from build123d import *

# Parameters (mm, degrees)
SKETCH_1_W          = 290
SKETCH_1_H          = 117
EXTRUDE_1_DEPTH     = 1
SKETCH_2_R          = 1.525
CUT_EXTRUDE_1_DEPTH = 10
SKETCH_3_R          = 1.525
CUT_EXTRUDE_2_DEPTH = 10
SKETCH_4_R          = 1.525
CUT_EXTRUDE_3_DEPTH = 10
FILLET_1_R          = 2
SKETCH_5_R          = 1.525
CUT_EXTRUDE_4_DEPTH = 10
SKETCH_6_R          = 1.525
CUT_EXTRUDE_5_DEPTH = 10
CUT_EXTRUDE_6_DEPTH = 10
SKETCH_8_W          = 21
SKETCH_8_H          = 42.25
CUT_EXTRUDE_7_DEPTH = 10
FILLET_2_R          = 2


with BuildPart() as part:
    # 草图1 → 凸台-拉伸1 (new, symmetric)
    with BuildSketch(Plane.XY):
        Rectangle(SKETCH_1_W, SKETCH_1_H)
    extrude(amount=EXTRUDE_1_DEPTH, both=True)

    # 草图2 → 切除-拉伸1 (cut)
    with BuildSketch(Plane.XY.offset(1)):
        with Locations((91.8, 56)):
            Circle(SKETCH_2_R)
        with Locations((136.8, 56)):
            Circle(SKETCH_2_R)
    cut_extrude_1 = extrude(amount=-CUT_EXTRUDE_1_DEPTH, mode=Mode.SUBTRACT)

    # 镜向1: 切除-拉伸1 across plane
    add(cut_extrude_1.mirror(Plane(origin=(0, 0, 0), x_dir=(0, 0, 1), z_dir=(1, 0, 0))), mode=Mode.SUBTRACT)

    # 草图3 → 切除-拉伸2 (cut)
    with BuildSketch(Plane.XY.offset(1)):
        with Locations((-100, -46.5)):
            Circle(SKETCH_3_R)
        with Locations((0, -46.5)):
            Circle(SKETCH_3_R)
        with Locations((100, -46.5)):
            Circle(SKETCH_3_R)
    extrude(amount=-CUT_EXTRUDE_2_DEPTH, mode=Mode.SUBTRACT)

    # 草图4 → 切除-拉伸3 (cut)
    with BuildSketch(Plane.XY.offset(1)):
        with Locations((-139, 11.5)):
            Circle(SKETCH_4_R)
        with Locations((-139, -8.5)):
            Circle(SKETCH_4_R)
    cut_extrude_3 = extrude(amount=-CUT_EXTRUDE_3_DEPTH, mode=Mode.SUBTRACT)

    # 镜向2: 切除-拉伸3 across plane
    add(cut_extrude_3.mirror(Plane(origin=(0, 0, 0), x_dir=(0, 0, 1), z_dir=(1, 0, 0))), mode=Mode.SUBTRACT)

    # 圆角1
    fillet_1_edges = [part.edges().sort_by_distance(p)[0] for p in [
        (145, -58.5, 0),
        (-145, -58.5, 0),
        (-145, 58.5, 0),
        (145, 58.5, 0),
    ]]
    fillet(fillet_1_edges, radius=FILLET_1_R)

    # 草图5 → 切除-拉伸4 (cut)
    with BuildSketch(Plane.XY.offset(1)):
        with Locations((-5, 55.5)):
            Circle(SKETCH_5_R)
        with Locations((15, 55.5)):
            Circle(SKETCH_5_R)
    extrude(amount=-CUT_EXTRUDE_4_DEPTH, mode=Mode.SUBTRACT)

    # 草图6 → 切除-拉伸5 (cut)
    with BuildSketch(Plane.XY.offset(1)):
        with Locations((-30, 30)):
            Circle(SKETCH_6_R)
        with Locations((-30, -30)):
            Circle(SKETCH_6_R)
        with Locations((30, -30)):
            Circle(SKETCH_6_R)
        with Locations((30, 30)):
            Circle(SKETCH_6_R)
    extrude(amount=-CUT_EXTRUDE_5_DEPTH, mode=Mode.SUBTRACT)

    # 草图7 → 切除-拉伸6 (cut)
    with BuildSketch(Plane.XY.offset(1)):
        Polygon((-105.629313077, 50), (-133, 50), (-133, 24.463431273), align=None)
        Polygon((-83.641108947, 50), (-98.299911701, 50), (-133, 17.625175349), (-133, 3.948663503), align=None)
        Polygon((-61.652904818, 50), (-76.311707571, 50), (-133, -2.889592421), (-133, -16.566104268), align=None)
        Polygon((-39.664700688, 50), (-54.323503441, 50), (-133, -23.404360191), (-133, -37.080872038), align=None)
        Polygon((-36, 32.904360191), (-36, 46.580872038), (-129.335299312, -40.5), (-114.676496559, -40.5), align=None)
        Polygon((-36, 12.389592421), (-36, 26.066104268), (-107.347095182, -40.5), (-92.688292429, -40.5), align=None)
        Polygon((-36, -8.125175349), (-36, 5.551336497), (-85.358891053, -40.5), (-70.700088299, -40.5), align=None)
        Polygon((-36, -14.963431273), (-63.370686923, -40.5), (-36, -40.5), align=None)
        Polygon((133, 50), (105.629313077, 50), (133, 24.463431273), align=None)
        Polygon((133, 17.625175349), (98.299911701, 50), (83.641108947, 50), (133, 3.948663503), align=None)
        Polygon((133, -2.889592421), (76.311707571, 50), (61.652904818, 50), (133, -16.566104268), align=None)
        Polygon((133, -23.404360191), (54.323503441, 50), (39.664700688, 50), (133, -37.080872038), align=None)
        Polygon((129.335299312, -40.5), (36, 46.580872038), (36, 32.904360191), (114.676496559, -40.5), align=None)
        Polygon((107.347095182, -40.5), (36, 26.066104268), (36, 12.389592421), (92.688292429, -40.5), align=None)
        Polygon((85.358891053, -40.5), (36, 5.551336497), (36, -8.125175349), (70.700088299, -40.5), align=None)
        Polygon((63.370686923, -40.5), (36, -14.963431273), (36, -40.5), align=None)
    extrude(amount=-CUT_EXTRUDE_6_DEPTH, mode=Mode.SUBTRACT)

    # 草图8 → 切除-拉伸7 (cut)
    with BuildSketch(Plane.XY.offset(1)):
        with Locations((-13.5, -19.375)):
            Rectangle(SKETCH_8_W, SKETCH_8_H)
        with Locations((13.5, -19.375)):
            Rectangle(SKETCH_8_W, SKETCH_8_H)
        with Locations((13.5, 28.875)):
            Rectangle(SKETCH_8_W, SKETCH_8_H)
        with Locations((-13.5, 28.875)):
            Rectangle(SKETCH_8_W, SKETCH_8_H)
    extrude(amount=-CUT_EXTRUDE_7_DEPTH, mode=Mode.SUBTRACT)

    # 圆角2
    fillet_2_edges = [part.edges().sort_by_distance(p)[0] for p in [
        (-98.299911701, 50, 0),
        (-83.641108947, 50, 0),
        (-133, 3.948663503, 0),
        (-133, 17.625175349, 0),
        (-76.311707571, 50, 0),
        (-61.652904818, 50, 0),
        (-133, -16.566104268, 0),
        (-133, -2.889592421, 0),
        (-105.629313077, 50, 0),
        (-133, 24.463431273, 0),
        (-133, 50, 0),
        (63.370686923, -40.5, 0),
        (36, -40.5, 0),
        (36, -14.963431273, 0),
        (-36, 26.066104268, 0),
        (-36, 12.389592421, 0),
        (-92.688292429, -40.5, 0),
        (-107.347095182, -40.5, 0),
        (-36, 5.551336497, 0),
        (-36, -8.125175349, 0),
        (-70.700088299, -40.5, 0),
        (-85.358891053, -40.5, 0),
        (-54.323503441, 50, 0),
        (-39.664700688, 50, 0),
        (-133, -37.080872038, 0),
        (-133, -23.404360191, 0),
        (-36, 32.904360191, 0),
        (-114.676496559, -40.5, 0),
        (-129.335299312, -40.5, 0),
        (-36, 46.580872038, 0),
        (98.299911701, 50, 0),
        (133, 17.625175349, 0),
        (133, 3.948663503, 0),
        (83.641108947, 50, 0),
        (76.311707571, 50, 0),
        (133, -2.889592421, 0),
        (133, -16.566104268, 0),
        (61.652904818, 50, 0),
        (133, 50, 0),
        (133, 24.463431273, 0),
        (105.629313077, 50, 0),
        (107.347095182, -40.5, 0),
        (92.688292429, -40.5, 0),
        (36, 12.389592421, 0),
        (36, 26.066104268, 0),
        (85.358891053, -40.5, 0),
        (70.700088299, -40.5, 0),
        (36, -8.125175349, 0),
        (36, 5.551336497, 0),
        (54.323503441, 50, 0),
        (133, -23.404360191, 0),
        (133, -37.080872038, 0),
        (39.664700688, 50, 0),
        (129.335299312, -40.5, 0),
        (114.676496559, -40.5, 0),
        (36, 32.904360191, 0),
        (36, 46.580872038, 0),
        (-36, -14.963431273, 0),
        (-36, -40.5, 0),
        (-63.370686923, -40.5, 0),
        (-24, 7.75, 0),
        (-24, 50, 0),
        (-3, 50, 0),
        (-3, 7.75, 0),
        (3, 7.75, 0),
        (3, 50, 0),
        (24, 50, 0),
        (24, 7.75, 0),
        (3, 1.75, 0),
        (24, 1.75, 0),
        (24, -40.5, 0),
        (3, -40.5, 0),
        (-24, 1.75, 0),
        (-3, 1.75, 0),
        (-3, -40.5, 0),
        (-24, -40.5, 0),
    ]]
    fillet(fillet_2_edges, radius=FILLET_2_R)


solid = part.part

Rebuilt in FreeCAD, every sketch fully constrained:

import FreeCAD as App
import Part
import Sketcher

V = App.Vector


def edges_at(feature, points):
    """Names of the edges that pass closest to the given points."""
    edges = feature.Shape.Edges
    near = lambda p: min(range(len(edges)), key=lambda i: edges[i].distToShape(Part.Vertex(*p))[0])
    return sorted({f"Edge{near(p) + 1}" for p in points})

doc = App.newDocument("Part")
body = doc.addObject("PartDesign::Body", "Body")

# Sketch on XY plane
sketch1 = doc.addObject("Sketcher::SketchObject", "Sketch")
body.addObject(sketch1)
sketch1.AttachmentSupport = (doc.XY_Plane, [""])
sketch1.MapMode = "FlatFace"
sketch1.addGeometry([
    Part.LineSegment(V(-145, 58, 0), V(-145, -58, 0)),
    Part.LineSegment(V(-145, -58, 0), V(145, -58, 0)),
    Part.LineSegment(V(145, -58, 0), V(145, 58, 0)),
    Part.LineSegment(V(145, 58, 0), V(-145, 58, 0)),
], False)
sketch1.addConstraint([
    Sketcher.Constraint("Coincident", 0, 2, 1, 1),
    Sketcher.Constraint("Coincident", 1, 2, 2, 1),
    Sketcher.Constraint("Coincident", 2, 2, 3, 1),
    Sketcher.Constraint("Coincident", 3, 2, 0, 1),
    Sketcher.Constraint("Vertical", 0),
    Sketcher.Constraint("Horizontal", 1),
    Sketcher.Constraint("Vertical", 2),
    Sketcher.Constraint("Horizontal", 3),
    Sketcher.Constraint("Symmetric", 0, 2, 2, 2, -1, 1),
    Sketcher.Constraint("DistanceX", 1, 1, 1, 2, 290.0),
    Sketcher.Constraint("DistanceY", 0, 2, 0, 1, 117.0),
])
pad1 = doc.addObject("PartDesign::Pad", "Pad")
body.addObject(pad1)
pad1.Profile = sketch1
pad1.Length = 2
pad1.Midplane = True

# Sketch on XY plane
sketch2 = doc.addObject("Sketcher::SketchObject", "Sketch001")
body.addObject(sketch2)
sketch2.AttachmentSupport = (doc.XY_Plane, [""])
sketch2.MapMode = "FlatFace"
sketch2.AttachmentOffset = App.Placement(V(0, 0, 1), App.Rotation())
sketch2.addGeometry([
    Part.Circle(V(91.8, 56, 0), V(0, 0, 1), 1.5),
    Part.Circle(V(136.8, 56, 0), V(0, 0, 1), 1.5),
], False)
sketch2.addConstraint([
    Sketcher.Constraint("Equal", 0, 1),
    Sketcher.Constraint("Horizontal", 0, 3, 1, 3),
    Sketcher.Constraint("Diameter", 0, 3.05),
    Sketcher.Constraint("DistanceY", -1, 1, 0, 3, 56.0),
    Sketcher.Constraint("DistanceX", 0, 3, 1, 3, 45.0),
    Sketcher.Constraint("DistanceX", -1, 1, 0, 3, 91.8),
])
pocket1 = doc.addObject("PartDesign::Pocket", "Pocket")
body.addObject(pocket1)
pocket1.Profile = sketch2
pocket1.Length = 10
doc.recompute()

mirrored = doc.addObject("PartDesign::Mirrored", "Mirrored")
body.addObject(mirrored)
mirrored.Originals = [pocket1]
mirrored.MirrorPlane = (doc.YZ_Plane, [""])
body.Tip = mirrored

# Sketch on XY plane
sketch3 = doc.addObject("Sketcher::SketchObject", "Sketch002")
body.addObject(sketch3)
sketch3.AttachmentSupport = (doc.XY_Plane, [""])
sketch3.MapMode = "FlatFace"
sketch3.AttachmentOffset = App.Placement(V(0, 0, 1), App.Rotation())
sketch3.addGeometry([
    Part.Circle(V(-100, -46.5, 0), V(0, 0, 1), 1.5),
    Part.Circle(V(0, -46.5, 0), V(0, 0, 1), 1.5),
    Part.Circle(V(100, -46.5, 0), V(0, 0, 1), 1.5),
], False)
sketch3.addConstraint([
    Sketcher.Constraint("Equal", 0, 1),
    Sketcher.Constraint("Equal", 1, 2),
    Sketcher.Constraint("Symmetric", 0, 3, 2, 3, -2),
    Sketcher.Constraint("PointOnObject", 1, 3, -2),
    Sketcher.Constraint("Horizontal", 0, 3, 1, 3),
    Sketcher.Constraint("Diameter", 0, 3.05),
    Sketcher.Constraint("DistanceX", 0, 3, -1, 1, 100.0),
    Sketcher.Constraint("DistanceY", 0, 3, -1, 1, 46.5),
])
pocket2 = doc.addObject("PartDesign::Pocket", "Pocket001")
body.addObject(pocket2)
pocket2.Profile = sketch3
pocket2.Length = 10

# Sketch on XY plane
sketch4 = doc.addObject("Sketcher::SketchObject", "Sketch003")
body.addObject(sketch4)
sketch4.AttachmentSupport = (doc.XY_Plane, [""])
sketch4.MapMode = "FlatFace"
sketch4.AttachmentOffset = App.Placement(V(0, 0, 1), App.Rotation())
sketch4.addGeometry([
    Part.Circle(V(-139, 11.5, 0), V(0, 0, 1), 1.5),
    Part.Circle(V(-139, -8.5, 0), V(0, 0, 1), 1.5),
], False)
sketch4.addConstraint([
    Sketcher.Constraint("Equal", 0, 1),
    Sketcher.Constraint("Vertical", 0, 3, 1, 3),
    Sketcher.Constraint("Diameter", 0, 3.05),
    Sketcher.Constraint("DistanceX", 0, 3, -1, 1, 139.0),
    Sketcher.Constraint("DistanceY", 1, 3, 0, 3, 20.0),
    Sketcher.Constraint("DistanceY", -1, 1, 0, 3, 11.5),
])
pocket3 = doc.addObject("PartDesign::Pocket", "Pocket002")
body.addObject(pocket3)
pocket3.Profile = sketch4
pocket3.Length = 10
doc.recompute()

mirrored2 = doc.addObject("PartDesign::Mirrored", "Mirrored001")
body.addObject(mirrored2)
mirrored2.Originals = [pocket3]
mirrored2.MirrorPlane = (doc.YZ_Plane, [""])
body.Tip = mirrored2
doc.recompute()

fillet = doc.addObject("PartDesign::Fillet", "Fillet")
body.addObject(fillet)
fillet.Base = (mirrored2, edges_at(mirrored2, [
    (145, -58.5, 0),
    (-145, -58.5, 0),
    (-145, 58.5, 0),
    (145, 58.5, 0),
]))
fillet.Radius = 2

# Sketch on XY plane
sketch5 = doc.addObject("Sketcher::SketchObject", "Sketch004")
body.addObject(sketch5)
sketch5.AttachmentSupport = (doc.XY_Plane, [""])
sketch5.MapMode = "FlatFace"
sketch5.AttachmentOffset = App.Placement(V(0, 0, 1), App.Rotation())
sketch5.addGeometry([
    Part.Circle(V(-5, 55.5, 0), V(0, 0, 1), 1.5),
    Part.Circle(V(15, 55.5, 0), V(0, 0, 1), 1.5),
], False)
sketch5.addConstraint([
    Sketcher.Constraint("Equal", 0, 1),
    Sketcher.Constraint("Horizontal", 0, 3, 1, 3),
    Sketcher.Constraint("Diameter", 0, 3.05),
    Sketcher.Constraint("DistanceX", 0, 3, -1, 1, 5.0),
    Sketcher.Constraint("DistanceX", -1, 1, 1, 3, 15.0),
    Sketcher.Constraint("DistanceY", -1, 1, 0, 3, 55.5),
])
pocket4 = doc.addObject("PartDesign::Pocket", "Pocket003")
body.addObject(pocket4)
pocket4.Profile = sketch5
pocket4.Length = 10

# Sketch on XY plane
sketch6 = doc.addObject("Sketcher::SketchObject", "Sketch005")
body.addObject(sketch6)
sketch6.AttachmentSupport = (doc.XY_Plane, [""])
sketch6.MapMode = "FlatFace"
sketch6.AttachmentOffset = App.Placement(V(0, 0, 1), App.Rotation())
sketch6.addGeometry([
    Part.Circle(V(-30, 30, 0), V(0, 0, 1), 1.5),
    Part.Circle(V(-30, -30, 0), V(0, 0, 1), 1.5),
    Part.Circle(V(30, -30, 0), V(0, 0, 1), 1.5),
    Part.Circle(V(30, 30, 0), V(0, 0, 1), 1.5),
], False)
sketch6.addConstraint([
    Sketcher.Constraint("Equal", 0, 1),
    Sketcher.Constraint("Equal", 1, 2),
    Sketcher.Constraint("Equal", 2, 3),
    Sketcher.Constraint("Symmetric", 0, 3, 2, 3, -1, 1),
    Sketcher.Constraint("Symmetric", 1, 3, 3, 3, -1, 1),
    Sketcher.Constraint("Symmetric", 1, 3, 2, 3, -2),
    Sketcher.Constraint("Diameter", 0, 3.05),
    Sketcher.Constraint("DistanceX", 0, 3, -1, 1, 30.0),
    Sketcher.Constraint("DistanceY", -1, 1, 0, 3, 30.0),
])
pocket5 = doc.addObject("PartDesign::Pocket", "Pocket004")
body.addObject(pocket5)
pocket5.Profile = sketch6
pocket5.Length = 10

# Sketch on XY plane
sketch7 = doc.addObject("Sketcher::SketchObject", "Sketch006")
body.addObject(sketch7)
sketch7.AttachmentSupport = (doc.XY_Plane, [""])
sketch7.MapMode = "FlatFace"
sketch7.AttachmentOffset = App.Placement(V(0, 0, 1), App.Rotation())
sketch7.addGeometry([
    Part.LineSegment(V(-106, 50, 0), V(-133, 50, 0)),  # 0
    Part.LineSegment(V(-133, 50, 0), V(-133, 24, 0)),  # 1
    Part.LineSegment(V(-133, 24, 0), V(-106, 50, 0)),  # 2
    Part.LineSegment(V(-84, 50, 0), V(-98, 50, 0)),  # 3
    Part.LineSegment(V(-98, 50, 0), V(-133, 18, 0)),  # 4
    Part.LineSegment(V(-133, 18, 0), V(-133, 4, 0)),  # 5
    Part.LineSegment(V(-133, 4, 0), V(-84, 50, 0)),  # 6
    Part.LineSegment(V(-62, 50, 0), V(-76, 50, 0)),  # 7
    Part.LineSegment(V(-76, 50, 0), V(-133, -3, 0)),  # 8
    Part.LineSegment(V(-133, -3, 0), V(-133, -17, 0)),  # 9
    Part.LineSegment(V(-133, -17, 0), V(-62, 50, 0)),  # 10
    Part.LineSegment(V(-40, 50, 0), V(-54, 50, 0)),  # 11
    Part.LineSegment(V(-54, 50, 0), V(-133, -23, 0)),  # 12
    Part.LineSegment(V(-133, -23, 0), V(-133, -37, 0)),  # 13
    Part.LineSegment(V(-133, -37, 0), V(-40, 50, 0)),  # 14
    Part.LineSegment(V(-36, 33, 0), V(-36, 47, 0)),  # 15
    Part.LineSegment(V(-36, 47, 0), V(-129, -40, 0)),  # 16
    Part.LineSegment(V(-129, -40, 0), V(-115, -40, 0)),  # 17
    Part.LineSegment(V(-115, -40, 0), V(-36, 33, 0)),  # 18
    Part.LineSegment(V(-36, 12, 0), V(-36, 26, 0)),  # 19
    Part.LineSegment(V(-36, 26, 0), V(-107, -40, 0)),  # 20
    Part.LineSegment(V(-107, -40, 0), V(-93, -40, 0)),  # 21
    Part.LineSegment(V(-93, -40, 0), V(-36, 12, 0)),  # 22
    Part.LineSegment(V(-36, -8, 0), V(-36, 6, 0)),  # 23
    Part.LineSegment(V(-36, 6, 0), V(-85, -40, 0)),  # 24
    Part.LineSegment(V(-85, -40, 0), V(-71, -40, 0)),  # 25
    Part.LineSegment(V(-71, -40, 0), V(-36, -8, 0)),  # 26
    Part.LineSegment(V(-36, -15, 0), V(-63, -40, 0)),  # 27
    Part.LineSegment(V(-63, -40, 0), V(-36, -40, 0)),  # 28
    Part.LineSegment(V(-36, -40, 0), V(-36, -15, 0)),  # 29
    Part.LineSegment(V(133, 50, 0), V(106, 50, 0)),  # 30
    Part.LineSegment(V(106, 50, 0), V(133, 24, 0)),  # 31
    Part.LineSegment(V(133, 24, 0), V(133, 50, 0)),  # 32
    Part.LineSegment(V(133, 18, 0), V(98, 50, 0)),  # 33
    Part.LineSegment(V(98, 50, 0), V(84, 50, 0)),  # 34
    Part.LineSegment(V(84, 50, 0), V(133, 4, 0)),  # 35
    Part.LineSegment(V(133, 4, 0), V(133, 18, 0)),  # 36
    Part.LineSegment(V(133, -3, 0), V(76, 50, 0)),  # 37
    Part.LineSegment(V(76, 50, 0), V(62, 50, 0)),  # 38
    Part.LineSegment(V(62, 50, 0), V(133, -17, 0)),  # 39
    Part.LineSegment(V(133, -17, 0), V(133, -3, 0)),  # 40
    Part.LineSegment(V(133, -23, 0), V(54, 50, 0)),  # 41
    Part.LineSegment(V(54, 50, 0), V(40, 50, 0)),  # 42
    Part.LineSegment(V(40, 50, 0), V(133, -37, 0)),  # 43
    Part.LineSegment(V(133, -37, 0), V(133, -23, 0)),  # 44
    Part.LineSegment(V(129, -40, 0), V(36, 47, 0)),  # 45
    Part.LineSegment(V(36, 47, 0), V(36, 33, 0)),  # 46
    Part.LineSegment(V(36, 33, 0), V(115, -40, 0)),  # 47
    Part.LineSegment(V(115, -40, 0), V(129, -40, 0)),  # 48
    Part.LineSegment(V(107, -40, 0), V(36, 26, 0)),  # 49
    Part.LineSegment(V(36, 26, 0), V(36, 12, 0)),  # 50
    Part.LineSegment(V(36, 12, 0), V(93, -40, 0)),  # 51
    Part.LineSegment(V(93, -40, 0), V(107, -40, 0)),  # 52
    Part.LineSegment(V(85, -40, 0), V(36, 6, 0)),  # 53
    Part.LineSegment(V(36, 6, 0), V(36, -8, 0)),  # 54
    Part.LineSegment(V(36, -8, 0), V(71, -40, 0)),  # 55
    Part.LineSegment(V(71, -40, 0), V(85, -40, 0)),  # 56
    Part.LineSegment(V(63, -40, 0), V(36, -15, 0)),  # 57
    Part.LineSegment(V(36, -15, 0), V(36, -40, 0)),  # 58
    Part.LineSegment(V(36, -40, 0), V(63, -40, 0)),  # 59
], False)
sketch7.addConstraint([
    Sketcher.Constraint("Coincident", 0, 2, 1, 1),
    Sketcher.Constraint("Coincident", 1, 2, 2, 1),
    Sketcher.Constraint("Coincident", 2, 2, 0, 1),
    Sketcher.Constraint("Coincident", 3, 2, 4, 1),
    Sketcher.Constraint("Coincident", 4, 2, 5, 1),
    Sketcher.Constraint("Coincident", 5, 2, 6, 1),
    Sketcher.Constraint("Coincident", 6, 2, 3, 1),
    Sketcher.Constraint("Coincident", 7, 2, 8, 1),
    Sketcher.Constraint("Coincident", 8, 2, 9, 1),
    Sketcher.Constraint("Coincident", 9, 2, 10, 1),
    Sketcher.Constraint("Coincident", 10, 2, 7, 1),
    Sketcher.Constraint("Coincident", 11, 2, 12, 1),
    Sketcher.Constraint("Coincident", 12, 2, 13, 1),
    Sketcher.Constraint("Coincident", 13, 2, 14, 1),
    Sketcher.Constraint("Coincident", 14, 2, 11, 1),
    Sketcher.Constraint("Coincident", 15, 2, 16, 1),
    Sketcher.Constraint("Coincident", 16, 2, 17, 1),
    Sketcher.Constraint("Coincident", 17, 2, 18, 1),
    Sketcher.Constraint("Coincident", 18, 2, 15, 1),
    Sketcher.Constraint("Coincident", 19, 2, 20, 1),
    Sketcher.Constraint("Coincident", 20, 2, 21, 1),
    Sketcher.Constraint("Coincident", 21, 2, 22, 1),
    Sketcher.Constraint("Coincident", 22, 2, 19, 1),
    Sketcher.Constraint("Coincident", 23, 2, 24, 1),
    Sketcher.Constraint("Coincident", 24, 2, 25, 1),
    Sketcher.Constraint("Coincident", 25, 2, 26, 1),
    Sketcher.Constraint("Coincident", 26, 2, 23, 1),
    Sketcher.Constraint("Coincident", 27, 2, 28, 1),
    Sketcher.Constraint("Coincident", 28, 2, 29, 1),
    Sketcher.Constraint("Coincident", 29, 2, 27, 1),
    Sketcher.Constraint("Coincident", 30, 2, 31, 1),
    Sketcher.Constraint("Coincident", 31, 2, 32, 1),
    Sketcher.Constraint("Coincident", 32, 2, 30, 1),
    Sketcher.Constraint("Coincident", 33, 2, 34, 1),
    Sketcher.Constraint("Coincident", 34, 2, 35, 1),
    Sketcher.Constraint("Coincident", 35, 2, 36, 1),
    Sketcher.Constraint("Coincident", 36, 2, 33, 1),
    Sketcher.Constraint("Coincident", 37, 2, 38, 1),
    Sketcher.Constraint("Coincident", 38, 2, 39, 1),
    Sketcher.Constraint("Coincident", 39, 2, 40, 1),
    Sketcher.Constraint("Coincident", 40, 2, 37, 1),
    Sketcher.Constraint("Coincident", 41, 2, 42, 1),
    Sketcher.Constraint("Coincident", 42, 2, 43, 1),
    Sketcher.Constraint("Coincident", 43, 2, 44, 1),
    Sketcher.Constraint("Coincident", 44, 2, 41, 1),
    Sketcher.Constraint("Coincident", 45, 2, 46, 1),
    Sketcher.Constraint("Coincident", 46, 2, 47, 1),
    Sketcher.Constraint("Coincident", 47, 2, 48, 1),
    Sketcher.Constraint("Coincident", 48, 2, 45, 1),
    Sketcher.Constraint("Coincident", 49, 2, 50, 1),
    Sketcher.Constraint("Coincident", 50, 2, 51, 1),
    Sketcher.Constraint("Coincident", 51, 2, 52, 1),
    Sketcher.Constraint("Coincident", 52, 2, 49, 1),
    Sketcher.Constraint("Coincident", 53, 2, 54, 1),
    Sketcher.Constraint("Coincident", 54, 2, 55, 1),
    Sketcher.Constraint("Coincident", 55, 2, 56, 1),
    Sketcher.Constraint("Coincident", 56, 2, 53, 1),
    Sketcher.Constraint("Coincident", 57, 2, 58, 1),
    Sketcher.Constraint("Coincident", 58, 2, 59, 1),
    Sketcher.Constraint("Coincident", 59, 2, 57, 1),
    Sketcher.Constraint("Horizontal", 0),
    Sketcher.Constraint("Vertical", 1),
    Sketcher.Constraint("Horizontal", 3),
    Sketcher.Constraint("Vertical", 5),
    Sketcher.Constraint("Horizontal", 7),
    Sketcher.Constraint("Vertical", 9),
    Sketcher.Constraint("Horizontal", 11),
    Sketcher.Constraint("Vertical", 13),
    Sketcher.Constraint("Vertical", 15),
    Sketcher.Constraint("Horizontal", 17),
    Sketcher.Constraint("Vertical", 19),
    Sketcher.Constraint("Horizontal", 21),
    Sketcher.Constraint("Vertical", 23),
    Sketcher.Constraint("Horizontal", 25),
    Sketcher.Constraint("Horizontal", 28),
    Sketcher.Constraint("Vertical", 29),
    Sketcher.Constraint("Horizontal", 30),
    Sketcher.Constraint("Vertical", 32),
    Sketcher.Constraint("Horizontal", 34),
    Sketcher.Constraint("Vertical", 36),
    Sketcher.Constraint("Horizontal", 38),
    Sketcher.Constraint("Vertical", 40),
    Sketcher.Constraint("Horizontal", 42),
    Sketcher.Constraint("Vertical", 44),
    Sketcher.Constraint("Vertical", 46),
    Sketcher.Constraint("Horizontal", 48),
    Sketcher.Constraint("Vertical", 50),
    Sketcher.Constraint("Horizontal", 52),
    Sketcher.Constraint("Vertical", 54),
    Sketcher.Constraint("Horizontal", 56),
    Sketcher.Constraint("Vertical", 58),
    Sketcher.Constraint("Horizontal", 59),
    Sketcher.Constraint("Symmetric", 2, 2, 30, 2, -2),
    Sketcher.Constraint("Symmetric", 1, 2, 31, 2, -2),
    Sketcher.Constraint("Symmetric", 3, 2, 33, 2, -2),
    Sketcher.Constraint("Symmetric", 5, 2, 35, 2, -2),
    Sketcher.Constraint("Symmetric", 7, 2, 37, 2, -2),
    Sketcher.Constraint("Symmetric", 9, 2, 39, 2, -2),
    Sketcher.Constraint("Symmetric", 11, 2, 41, 2, -2),
    Sketcher.Constraint("Symmetric", 13, 2, 43, 2, -2),
    Sketcher.Constraint("Symmetric", 15, 2, 45, 2, -2),
    Sketcher.Constraint("Symmetric", 17, 2, 47, 2, -2),
    Sketcher.Constraint("Symmetric", 19, 2, 49, 2, -2),
    Sketcher.Constraint("Symmetric", 21, 2, 51, 2, -2),
    Sketcher.Constraint("Symmetric", 23, 2, 53, 2, -2),
    Sketcher.Constraint("Symmetric", 25, 2, 55, 2, -2),
    Sketcher.Constraint("Symmetric", 29, 2, 57, 2, -2),
    Sketcher.Constraint("Symmetric", 27, 2, 59, 2, -2),
    Sketcher.Constraint("Parallel", 2, 4),
    Sketcher.Constraint("Parallel", 4, 6),
    Sketcher.Constraint("Parallel", 6, 8),
    Sketcher.Constraint("Parallel", 8, 10),
    Sketcher.Constraint("Parallel", 10, 12),
    Sketcher.Constraint("Parallel", 12, 14),
    Sketcher.Constraint("Parallel", 14, 16),
    Sketcher.Constraint("Parallel", 16, 18),
    Sketcher.Constraint("Parallel", 18, 20),
    Sketcher.Constraint("Parallel", 20, 22),
    Sketcher.Constraint("Parallel", 22, 24),
    Sketcher.Constraint("Parallel", 24, 26),
    Sketcher.Constraint("Parallel", 26, 27),
    Sketcher.Constraint("Parallel", 31, 33),
    Sketcher.Constraint("Parallel", 33, 35),
    Sketcher.Constraint("Parallel", 35, 37),
    Sketcher.Constraint("Parallel", 37, 39),
    Sketcher.Constraint("Parallel", 39, 41),
    Sketcher.Constraint("Parallel", 41, 43),
    Sketcher.Constraint("Parallel", 43, 45),
    Sketcher.Constraint("Parallel", 45, 47),
    Sketcher.Constraint("Parallel", 47, 49),
    Sketcher.Constraint("Parallel", 49, 51),
    Sketcher.Constraint("Parallel", 51, 53),
    Sketcher.Constraint("Parallel", 53, 55),
    Sketcher.Constraint("Horizontal", 2, 2, 3, 2),
    Sketcher.Constraint("Horizontal", 6, 2, 7, 2),
    Sketcher.Constraint("Horizontal", 10, 2, 11, 2),
    Sketcher.Constraint("Horizontal", 17, 2, 20, 2),
    Sketcher.Constraint("Horizontal", 21, 2, 24, 2),
    Sketcher.Constraint("Horizontal", 25, 2, 27, 2),
    Sketcher.Constraint("Vertical", 1, 2, 4, 2),
    Sketcher.Constraint("Vertical", 5, 2, 8, 2),
    Sketcher.Constraint("Vertical", 9, 2, 12, 2),
    Sketcher.Constraint("Vertical", 18, 2, 19, 2),
    Sketcher.Constraint("Vertical", 22, 2, 23, 2),
    Sketcher.Constraint("Vertical", 26, 2, 28, 2),
    Sketcher.Constraint("Equal", 3, 7),
    Sketcher.Constraint("Equal", 7, 11),
    Sketcher.Constraint("Equal", 11, 17),
    Sketcher.Constraint("Equal", 17, 21),
    Sketcher.Constraint("Equal", 21, 25),
    Sketcher.Constraint("Equal", 0, 28),
    Sketcher.Constraint("Equal", 14, 16),
    Sketcher.Constraint("Equal", 10, 20),
    Sketcher.Constraint("Equal", 6, 24),
    Sketcher.Constraint("DistanceX", 0, 2, -1, 1, 133.0),
    Sketcher.Constraint("DistanceY", -1, 1, 0, 2, 50.0),
    Sketcher.Constraint("DistanceX", 15, 2, -1, 1, 36.0),
    Sketcher.Constraint("DistanceY", 16, 2, -1, 1, 40.5),
    Sketcher.Constraint("DistanceY", 1, 2, 1, 1, 25.536569),
    Sketcher.Constraint("DistanceY", 5, 2, 5, 1, 13.676512),
    Sketcher.Constraint("DistanceX", 14, 2, -1, 1, 39.664701),
    Sketcher.Constraint("DistanceX", 2, 2, 3, 2, 7.329401),
    Sketcher.Constraint("DistanceX", 6, 2, 7, 2, 7.329401),
    Sketcher.Constraint("DistanceX", 10, 2, 11, 2, 7.329401),
])
pocket6 = doc.addObject("PartDesign::Pocket", "Pocket005")
body.addObject(pocket6)
pocket6.Profile = sketch7
pocket6.Length = 10

# Sketch on XY plane
sketch8 = doc.addObject("Sketcher::SketchObject", "Sketch007")
body.addObject(sketch8)
sketch8.AttachmentSupport = (doc.XY_Plane, [""])
sketch8.MapMode = "FlatFace"
sketch8.AttachmentOffset = App.Placement(V(0, 0, 1), App.Rotation())
sketch8.addGeometry([
    Part.LineSegment(V(-24, 2, 0), V(-24, -40, 0)),  # 0
    Part.LineSegment(V(-24, -40, 0), V(-3, -40, 0)),  # 1
    Part.LineSegment(V(-3, -40, 0), V(-3, 2, 0)),  # 2
    Part.LineSegment(V(-3, 2, 0), V(-24, 2, 0)),  # 3
    Part.LineSegment(V(3, 2, 0), V(3, -40, 0)),  # 4
    Part.LineSegment(V(3, -40, 0), V(24, -40, 0)),  # 5
    Part.LineSegment(V(24, -40, 0), V(24, 2, 0)),  # 6
    Part.LineSegment(V(24, 2, 0), V(3, 2, 0)),  # 7
    Part.LineSegment(V(3, 50, 0), V(3, 8, 0)),  # 8
    Part.LineSegment(V(3, 8, 0), V(24, 8, 0)),  # 9
    Part.LineSegment(V(24, 8, 0), V(24, 50, 0)),  # 10
    Part.LineSegment(V(24, 50, 0), V(3, 50, 0)),  # 11
    Part.LineSegment(V(-24, 50, 0), V(-24, 8, 0)),  # 12
    Part.LineSegment(V(-24, 8, 0), V(-3, 8, 0)),  # 13
    Part.LineSegment(V(-3, 8, 0), V(-3, 50, 0)),  # 14
    Part.LineSegment(V(-3, 50, 0), V(-24, 50, 0)),  # 15
], False)
sketch8.addConstraint([
    Sketcher.Constraint("Coincident", 0, 2, 1, 1),
    Sketcher.Constraint("Coincident", 1, 2, 2, 1),
    Sketcher.Constraint("Coincident", 2, 2, 3, 1),
    Sketcher.Constraint("Coincident", 3, 2, 0, 1),
    Sketcher.Constraint("Coincident", 4, 2, 5, 1),
    Sketcher.Constraint("Coincident", 5, 2, 6, 1),
    Sketcher.Constraint("Coincident", 6, 2, 7, 1),
    Sketcher.Constraint("Coincident", 7, 2, 4, 1),
    Sketcher.Constraint("Coincident", 8, 2, 9, 1),
    Sketcher.Constraint("Coincident", 9, 2, 10, 1),
    Sketcher.Constraint("Coincident", 10, 2, 11, 1),
    Sketcher.Constraint("Coincident", 11, 2, 8, 1),
    Sketcher.Constraint("Coincident", 12, 2, 13, 1),
    Sketcher.Constraint("Coincident", 13, 2, 14, 1),
    Sketcher.Constraint("Coincident", 14, 2, 15, 1),
    Sketcher.Constraint("Coincident", 15, 2, 12, 1),
    Sketcher.Constraint("Vertical", 0),
    Sketcher.Constraint("Horizontal", 1),
    Sketcher.Constraint("Vertical", 2),
    Sketcher.Constraint("Horizontal", 3),
    Sketcher.Constraint("Vertical", 4),
    Sketcher.Constraint("Horizontal", 5),
    Sketcher.Constraint("Vertical", 6),
    Sketcher.Constraint("Horizontal", 7),
    Sketcher.Constraint("Vertical", 8),
    Sketcher.Constraint("Horizontal", 9),
    Sketcher.Constraint("Vertical", 10),
    Sketcher.Constraint("Horizontal", 11),
    Sketcher.Constraint("Vertical", 12),
    Sketcher.Constraint("Horizontal", 13),
    Sketcher.Constraint("Vertical", 14),
    Sketcher.Constraint("Horizontal", 15),
    Sketcher.Constraint("Symmetric", 1, 2, 4, 2, -2),
    Sketcher.Constraint("Symmetric", 3, 2, 6, 2, -2),
    Sketcher.Constraint("Symmetric", 9, 2, 12, 2, -2),
    Sketcher.Constraint("Symmetric", 11, 2, 14, 2, -2),
    Sketcher.Constraint("Vertical", 7, 2, 8, 2),
    Sketcher.Constraint("Vertical", 6, 2, 9, 2),
    Sketcher.Constraint("Equal", 6, 8),
    Sketcher.Constraint("DistanceX", 1, 1, 1, 2, 21.0),
    Sketcher.Constraint("DistanceX", 0, 2, -1, 1, 24.0),
    Sketcher.Constraint("DistanceY", -1, 1, 10, 2, 50.0),
    Sketcher.Constraint("DistanceY", 7, 2, 8, 2, 6.0),
    Sketcher.Constraint("DistanceY", 0, 2, 0, 1, 42.25),
])
pocket7 = doc.addObject("PartDesign::Pocket", "Pocket006")
body.addObject(pocket7)
pocket7.Profile = sketch8
pocket7.Length = 10
doc.recompute()

fillet2 = doc.addObject("PartDesign::Fillet", "Fillet001")
body.addObject(fillet2)
fillet2.Base = (pocket7, edges_at(pocket7, [
    (-98.3, 50, 0),
    (-83.641, 50, 0),
    (-133, 3.949, 0),
    (-133, 17.625, 0),
    (-76.312, 50, 0),
    (-61.653, 50, 0),
    (-133, -16.566, 0),
    (-133, -2.89, 0),
    (-105.629, 50, 0),
    (-133, 24.463, 0),
    (-133, 50, 0),
    (63.371, -40.5, 0),
    (36, -40.5, 0),
    (36, -14.963, 0),
    (-36, 26.066, 0),
    (-36, 12.39, 0),
    (-92.688, -40.5, 0),
    (-107.347, -40.5, 0),
    (-36, 5.551, 0),
    (-36, -8.125, 0),
    (-70.7, -40.5, 0),
    (-85.359, -40.5, 0),
    (-54.324, 50, 0),
    (-39.665, 50, 0),
    (-133, -37.081, 0),
    (-133, -23.404, 0),
    (-36, 32.904, 0),
    (-114.676, -40.5, 0),
    (-129.335, -40.5, 0),
    (-36, 46.581, 0),
    (98.3, 50, 0),
    (133, 17.625, 0),
    (133, 3.949, 0),
    (83.641, 50, 0),
    (76.312, 50, 0),
    (133, -2.89, 0),
    (133, -16.566, 0),
    (61.653, 50, 0),
    (133, 50, 0),
    (133, 24.463, 0),
    (105.629, 50, 0),
    (107.347, -40.5, 0),
    (92.688, -40.5, 0),
    (36, 12.39, 0),
    (36, 26.066, 0),
    (85.359, -40.5, 0),
    (70.7, -40.5, 0),
    (36, -8.125, 0),
    (36, 5.551, 0),
    (54.324, 50, 0),
    (133, -23.404, 0),
    (133, -37.081, 0),
    (39.665, 50, 0),
    (129.335, -40.5, 0),
    (114.676, -40.5, 0),
    (36, 32.904, 0),
    (36, 46.581, 0),
    (-36, -14.963, 0),
    (-36, -40.5, 0),
    (-63.371, -40.5, 0),
    (-24, 7.75, 0),
    (-24, 50, 0),
    (-3, 50, 0),
    (-3, 7.75, 0),
    (3, 7.75, 0),
    (3, 50, 0),
    (24, 50, 0),
    (24, 7.75, 0),
    (3, 1.75, 0),
    (24, 1.75, 0),
    (24, -40.5, 0),
    (3, -40.5, 0),
    (-24, 1.75, 0),
    (-3, 1.75, 0),
    (-3, -40.5, 0),
    (-24, -40.5, 0),
]))
fillet2.Radius = 2

doc.recompute()
